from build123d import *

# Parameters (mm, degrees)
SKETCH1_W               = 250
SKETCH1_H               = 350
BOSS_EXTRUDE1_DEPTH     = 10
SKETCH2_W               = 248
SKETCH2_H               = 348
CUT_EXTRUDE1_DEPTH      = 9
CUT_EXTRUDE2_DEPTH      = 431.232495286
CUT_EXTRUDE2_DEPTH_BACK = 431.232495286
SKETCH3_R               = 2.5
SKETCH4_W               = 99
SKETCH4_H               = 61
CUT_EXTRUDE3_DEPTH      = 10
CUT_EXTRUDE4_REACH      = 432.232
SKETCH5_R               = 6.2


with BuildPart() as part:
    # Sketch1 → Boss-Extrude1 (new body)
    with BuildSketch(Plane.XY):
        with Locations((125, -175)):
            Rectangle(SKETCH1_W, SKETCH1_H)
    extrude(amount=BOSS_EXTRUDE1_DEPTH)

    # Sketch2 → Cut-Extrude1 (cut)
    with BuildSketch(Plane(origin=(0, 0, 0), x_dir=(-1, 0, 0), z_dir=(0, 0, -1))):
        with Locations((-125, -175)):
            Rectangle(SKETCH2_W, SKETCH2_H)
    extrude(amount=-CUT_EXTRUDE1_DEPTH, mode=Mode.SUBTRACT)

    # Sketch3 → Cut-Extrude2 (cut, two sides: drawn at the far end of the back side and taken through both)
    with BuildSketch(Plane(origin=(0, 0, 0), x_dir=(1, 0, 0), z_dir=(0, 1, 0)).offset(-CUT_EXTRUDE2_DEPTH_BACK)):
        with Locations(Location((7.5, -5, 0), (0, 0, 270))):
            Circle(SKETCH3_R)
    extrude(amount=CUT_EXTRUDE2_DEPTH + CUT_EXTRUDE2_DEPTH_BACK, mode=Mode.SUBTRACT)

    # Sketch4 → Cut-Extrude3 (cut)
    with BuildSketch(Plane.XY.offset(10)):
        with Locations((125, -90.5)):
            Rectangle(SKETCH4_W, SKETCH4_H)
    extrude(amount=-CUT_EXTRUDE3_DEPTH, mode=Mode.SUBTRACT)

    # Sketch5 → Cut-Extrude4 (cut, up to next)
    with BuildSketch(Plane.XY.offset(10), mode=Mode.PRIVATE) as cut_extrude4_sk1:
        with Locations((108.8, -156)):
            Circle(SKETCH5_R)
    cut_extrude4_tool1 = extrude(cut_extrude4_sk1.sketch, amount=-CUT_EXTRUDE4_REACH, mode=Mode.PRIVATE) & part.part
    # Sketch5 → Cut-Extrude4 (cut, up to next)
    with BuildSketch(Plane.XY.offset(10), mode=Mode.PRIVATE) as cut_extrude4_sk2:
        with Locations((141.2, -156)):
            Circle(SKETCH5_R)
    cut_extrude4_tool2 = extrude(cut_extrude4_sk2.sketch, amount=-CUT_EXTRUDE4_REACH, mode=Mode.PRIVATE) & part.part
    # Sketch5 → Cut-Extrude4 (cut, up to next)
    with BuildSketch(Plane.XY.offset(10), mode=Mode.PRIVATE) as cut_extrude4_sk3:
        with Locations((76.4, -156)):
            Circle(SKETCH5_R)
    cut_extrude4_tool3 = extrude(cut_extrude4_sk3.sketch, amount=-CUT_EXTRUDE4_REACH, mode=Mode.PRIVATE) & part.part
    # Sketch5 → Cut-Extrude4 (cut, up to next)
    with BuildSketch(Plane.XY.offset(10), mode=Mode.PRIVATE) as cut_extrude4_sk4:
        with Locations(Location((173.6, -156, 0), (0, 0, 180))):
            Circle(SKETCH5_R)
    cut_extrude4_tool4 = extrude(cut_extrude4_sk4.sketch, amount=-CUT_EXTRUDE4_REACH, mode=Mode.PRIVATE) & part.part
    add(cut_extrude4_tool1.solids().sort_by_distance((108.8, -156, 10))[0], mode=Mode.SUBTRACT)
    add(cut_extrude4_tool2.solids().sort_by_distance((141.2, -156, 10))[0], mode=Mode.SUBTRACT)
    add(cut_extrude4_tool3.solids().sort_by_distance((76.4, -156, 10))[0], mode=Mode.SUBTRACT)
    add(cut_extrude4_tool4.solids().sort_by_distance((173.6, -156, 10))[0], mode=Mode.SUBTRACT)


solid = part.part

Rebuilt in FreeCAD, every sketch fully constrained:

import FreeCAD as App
import Part
import Sketcher
from FreeCAD import Vector
Q = App.Units.Quantity


def add_polygon(sketch, points):
    """Adds a closed chain of lines whose ends are joined by coincident constraints."""
    first, n = sketch.GeometryCount, len(points)
    for a, b in zip(points, points[1:] + points[:1]):
        sketch.addGeometry(Part.LineSegment(App.Vector(*a, 0), App.Vector(*b, 0)), False)
    for i in range(n):
        sketch.addConstraint(Sketcher.Constraint("Coincident", first + i, 2, first + (i + 1) % n, 1))

doc = App.newDocument("Part")
params = doc.addObject("Spreadsheet::Sheet", "Params")
for row, (alias, value) in enumerate([
    ("sketch1_width", "250 mm"),
    ("sketch1_height", "350 mm"),
    ("pad1_length", "10 mm"),
    ("sketch2_width", "248 mm"),
    ("sketch2_height", "348 mm"),
    ("pocket1_length", "9 mm"),
    ("sketch3_diameter", "5 mm"),
    ("sketch4_width", "99 mm"),
    ("sketch4_height", "61 mm"),
    ("pocket3_length", "10 mm"),
    ("sketch5_diameter", "12.4 mm"),
    ("sketch6_diameter", "12.4 mm"),
    ("sketch7_diameter", "12.4 mm"),
    ("sketch8_diameter", "12.4 mm"),
], start=1):
    params.set(f"A{row}", alias)
    params.set(f"B{row}", "=" + value)
    params.setAlias(f"B{row}", alias)

body = doc.addObject("PartDesign::Body", "Body")

# Sketch on XY plane
sketch1 = body.newObject("Sketcher::SketchObject", "Sketch")
sketch1.AttachmentSupport = (doc.getObject("XY_Plane"), [""])
sketch1.MapMode = "FlatFace"
add_polygon(sketch1, [(0, 0), (0, -350), (250, -350), (250, 0)])  # lines 0-3
sketch1.addConstraint(Sketcher.Constraint("Vertical", 0))
sketch1.addConstraint(Sketcher.Constraint("Horizontal", 1))
sketch1.addConstraint(Sketcher.Constraint("Vertical", 2))
sketch1.addConstraint(Sketcher.Constraint("Horizontal", 3))
sketch1.addConstraint(Sketcher.Constraint("Coincident", 3, 2, -1, 1))
sketch1.addConstraint(Sketcher.Constraint("DistanceX", 1, 1, 1, 2, Q("250 mm")))
sketch1.addConstraint(Sketcher.Constraint("DistanceY", 0, 2, 0, 1, Q("350 mm")))
sketch1.setExpression("Constraints[9]", "Params.sketch1_width")
sketch1.setExpression("Constraints[10]", "Params.sketch1_height")
pad1 = body.newObject("PartDesign::Pad", "Pad")
pad1.Profile = sketch1
pad1.setExpression("Length", "Params.pad1_length")

# Sketch on XY plane
sketch2 = body.newObject("Sketcher::SketchObject", "Sketch001")
sketch2.AttachmentSupport = (doc.getObject("XY_Plane"), [""])
sketch2.MapMode = "FlatFace"
add_polygon(sketch2, [(249, -1), (249, -349), (1, -349), (1, -1)])  # lines 0-3
sketch2.addConstraint(Sketcher.Constraint("Vertical", 0))
sketch2.addConstraint(Sketcher.Constraint("Horizontal", 1))
sketch2.addConstraint(Sketcher.Constraint("Vertical", 2))
sketch2.addConstraint(Sketcher.Constraint("Horizontal", 3))
sketch2.addConstraint(Sketcher.Constraint("DistanceX", 1, 2, 1, 1, Q("248 mm")))
sketch2.addConstraint(Sketcher.Constraint("DistanceY", 0, 2, 0, 1, Q("348 mm")))
sketch2.addConstraint(Sketcher.Constraint("DistanceX", -1, 1, 0, 2, Q("249 mm")))
sketch2.addConstraint(Sketcher.Constraint("DistanceY", 0, 2, -1, 1, Q("349 mm")))
sketch2.setExpression("Constraints[8]", "Params.sketch2_width")
sketch2.setExpression("Constraints[9]", "Params.sketch2_height")
pocket1 = body.newObject("PartDesign::Pocket", "Pocket")
pocket1.Profile = sketch2
pocket1.setExpression("Length", "Params.pocket1_length")
pocket1.Reversed = True

# Sketch on XZ plane
sketch3 = body.newObject("Sketcher::SketchObject", "Sketch002")
sketch3.AttachmentSupport = (doc.getObject("XZ_Plane"), [""])
sketch3.MapMode = "FlatFace"
sketch3.addGeometry(Part.Circle(Vector(7.5, 5, 0), Vector(0, 0, 1), 2.5), False)
sketch3.addConstraint(Sketcher.Constraint("Diameter", 0, Q("5 mm")))
sketch3.addConstraint(Sketcher.Constraint("DistanceY", -1, 1, 0, 3, Q("5 mm")))
sketch3.addConstraint(Sketcher.Constraint("DistanceX", -1, 1, 0, 3, Q("7.5 mm")))
sketch3.setExpression("Constraints[0]", "Params.sketch3_diameter")
pocket2 = body.newObject("PartDesign::Pocket", "Pocket001")
pocket2.Profile = sketch3
pocket2.Type = "ThroughAll"
pocket2.Midplane = True

# Sketch on XY plane
sketch4 = body.newObject("Sketcher::SketchObject", "Sketch003")
sketch4.AttachmentSupport = (doc.getObject("XY_Plane"), [""])
sketch4.MapMode = "FlatFace"
sketch4.AttachmentOffset = App.Placement(Vector(0, 0, 10), App.Rotation())
add_polygon(sketch4, [(75.5, -60), (75.5, -121), (174.5, -121), (174.5, -60)])  # lines 0-3
sketch4.addConstraint(Sketcher.Constraint("Vertical", 0))
sketch4.addConstraint(Sketcher.Constraint("Horizontal", 1))
sketch4.addConstraint(Sketcher.Constraint("Vertical", 2))
sketch4.addConstraint(Sketcher.Constraint("Horizontal", 3))
sketch4.addConstraint(Sketcher.Constraint("DistanceX", 1, 1, 1, 2, Q("99 mm")))
sketch4.addConstraint(Sketcher.Constraint("DistanceY", 0, 2, 0, 1, Q("61 mm")))
sketch4.addConstraint(Sketcher.Constraint("DistanceY", 0, 2, -1, 1, Q("121 mm")))
sketch4.addConstraint(Sketcher.Constraint("DistanceX", -1, 1, 0, 2, Q("75.5 mm")))
sketch4.setExpression("Constraints[8]", "Params.sketch4_width")
sketch4.setExpression("Constraints[9]", "Params.sketch4_height")
pocket3 = body.newObject("PartDesign::Pocket", "Pocket002")
pocket3.Profile = sketch4
pocket3.setExpression("Length", "Params.pocket3_length")

# Sketch on XY plane
sketch5 = body.newObject("Sketcher::SketchObject", "Sketch004")
sketch5.AttachmentSupport = (doc.getObject("XY_Plane"), [""])
sketch5.MapMode = "FlatFace"
sketch5.AttachmentOffset = App.Placement(Vector(0, 0, 10), App.Rotation())
sketch5.addGeometry(Part.Circle(Vector(108.8, -156, 0), Vector(0, 0, 1), 6.2), False)
sketch5.addConstraint(Sketcher.Constraint("Diameter", 0, Q("12.4 mm")))
sketch5.addConstraint(Sketcher.Constraint("DistanceY", 0, 3, -1, 1, Q("156 mm")))
sketch5.addConstraint(Sketcher.Constraint("DistanceX", -1, 1, 0, 3, Q("108.8 mm")))
sketch5.setExpression("Constraints[0]", "Params.sketch5_diameter")
pocket4 = body.newObject("PartDesign::Pocket", "Pocket003")
pocket4.Profile = sketch5
pocket4.Type = "UpToFirst"

# Sketch on XY plane
sketch6 = body.newObject("Sketcher::SketchObject", "Sketch005")
sketch6.AttachmentSupport = (doc.getObject("XY_Plane"), [""])
sketch6.MapMode = "FlatFace"
sketch6.AttachmentOffset = App.Placement(Vector(0, 0, 10), App.Rotation())
sketch6.addGeometry(Part.Circle(Vector(141.2, -156, 0), Vector(0, 0, 1), 6.2), False)
sketch6.addConstraint(Sketcher.Constraint("Diameter", 0, Q("12.4 mm")))
sketch6.addConstraint(Sketcher.Constraint("DistanceY", 0, 3, -1, 1, Q("156 mm")))
sketch6.addConstraint(Sketcher.Constraint("DistanceX", -1, 1, 0, 3, Q("141.2 mm")))
sketch6.setExpression("Constraints[0]", "Params.sketch6_diameter")
pocket5 = body.newObject("PartDesign::Pocket", "Pocket004")
pocket5.Profile = sketch6
pocket5.Type = "UpToFirst"

# Sketch on XY plane
sketch7 = body.newObject("Sketcher::SketchObject", "Sketch006")
sketch7.AttachmentSupport = (doc.getObject("XY_Plane"), [""])
sketch7.MapMode = "FlatFace"
sketch7.AttachmentOffset = App.Placement(Vector(0, 0, 10), App.Rotation())
sketch7.addGeometry(Part.Circle(Vector(76.4, -156, 0), Vector(0, 0, 1), 6.2), False)
sketch7.addConstraint(Sketcher.Constraint("Diameter", 0, Q("12.4 mm")))
sketch7.addConstraint(Sketcher.Constraint("DistanceY", 0, 3, -1, 1, Q("156 mm")))
sketch7.addConstraint(Sketcher.Constraint("DistanceX", -1, 1, 0, 3, Q("76.4 mm")))
sketch7.setExpression("Constraints[0]", "Params.sketch7_diameter")
pocket6 = body.newObject("PartDesign::Pocket", "Pocket005")
pocket6.Profile = sketch7
pocket6.Type = "UpToFirst"

# Sketch on XY plane
sketch8 = body.newObject("Sketcher::SketchObject", "Sketch007")
sketch8.AttachmentSupport = (doc.getObject("XY_Plane"), [""])
sketch8.MapMode = "FlatFace"
sketch8.AttachmentOffset = App.Placement(Vector(0, 0, 10), App.Rotation())
sketch8.addGeometry(Part.Circle(Vector(173.6, -156, 0), Vector(0, 0, 1), 6.2), False)
sketch8.addConstraint(Sketcher.Constraint("Diameter", 0, Q("12.4 mm")))
sketch8.addConstraint(Sketcher.Constraint("DistanceY", 0, 3, -1, 1, Q("156 mm")))
sketch8.addConstraint(Sketcher.Constraint("DistanceX", -1, 1, 0, 3, Q("173.6 mm")))
sketch8.setExpression("Constraints[0]", "Params.sketch8_diameter")
pocket7 = body.newObject("PartDesign::Pocket", "Pocket006")
pocket7.Profile = sketch8
pocket7.Type = "UpToFirst"

doc.recompute()
